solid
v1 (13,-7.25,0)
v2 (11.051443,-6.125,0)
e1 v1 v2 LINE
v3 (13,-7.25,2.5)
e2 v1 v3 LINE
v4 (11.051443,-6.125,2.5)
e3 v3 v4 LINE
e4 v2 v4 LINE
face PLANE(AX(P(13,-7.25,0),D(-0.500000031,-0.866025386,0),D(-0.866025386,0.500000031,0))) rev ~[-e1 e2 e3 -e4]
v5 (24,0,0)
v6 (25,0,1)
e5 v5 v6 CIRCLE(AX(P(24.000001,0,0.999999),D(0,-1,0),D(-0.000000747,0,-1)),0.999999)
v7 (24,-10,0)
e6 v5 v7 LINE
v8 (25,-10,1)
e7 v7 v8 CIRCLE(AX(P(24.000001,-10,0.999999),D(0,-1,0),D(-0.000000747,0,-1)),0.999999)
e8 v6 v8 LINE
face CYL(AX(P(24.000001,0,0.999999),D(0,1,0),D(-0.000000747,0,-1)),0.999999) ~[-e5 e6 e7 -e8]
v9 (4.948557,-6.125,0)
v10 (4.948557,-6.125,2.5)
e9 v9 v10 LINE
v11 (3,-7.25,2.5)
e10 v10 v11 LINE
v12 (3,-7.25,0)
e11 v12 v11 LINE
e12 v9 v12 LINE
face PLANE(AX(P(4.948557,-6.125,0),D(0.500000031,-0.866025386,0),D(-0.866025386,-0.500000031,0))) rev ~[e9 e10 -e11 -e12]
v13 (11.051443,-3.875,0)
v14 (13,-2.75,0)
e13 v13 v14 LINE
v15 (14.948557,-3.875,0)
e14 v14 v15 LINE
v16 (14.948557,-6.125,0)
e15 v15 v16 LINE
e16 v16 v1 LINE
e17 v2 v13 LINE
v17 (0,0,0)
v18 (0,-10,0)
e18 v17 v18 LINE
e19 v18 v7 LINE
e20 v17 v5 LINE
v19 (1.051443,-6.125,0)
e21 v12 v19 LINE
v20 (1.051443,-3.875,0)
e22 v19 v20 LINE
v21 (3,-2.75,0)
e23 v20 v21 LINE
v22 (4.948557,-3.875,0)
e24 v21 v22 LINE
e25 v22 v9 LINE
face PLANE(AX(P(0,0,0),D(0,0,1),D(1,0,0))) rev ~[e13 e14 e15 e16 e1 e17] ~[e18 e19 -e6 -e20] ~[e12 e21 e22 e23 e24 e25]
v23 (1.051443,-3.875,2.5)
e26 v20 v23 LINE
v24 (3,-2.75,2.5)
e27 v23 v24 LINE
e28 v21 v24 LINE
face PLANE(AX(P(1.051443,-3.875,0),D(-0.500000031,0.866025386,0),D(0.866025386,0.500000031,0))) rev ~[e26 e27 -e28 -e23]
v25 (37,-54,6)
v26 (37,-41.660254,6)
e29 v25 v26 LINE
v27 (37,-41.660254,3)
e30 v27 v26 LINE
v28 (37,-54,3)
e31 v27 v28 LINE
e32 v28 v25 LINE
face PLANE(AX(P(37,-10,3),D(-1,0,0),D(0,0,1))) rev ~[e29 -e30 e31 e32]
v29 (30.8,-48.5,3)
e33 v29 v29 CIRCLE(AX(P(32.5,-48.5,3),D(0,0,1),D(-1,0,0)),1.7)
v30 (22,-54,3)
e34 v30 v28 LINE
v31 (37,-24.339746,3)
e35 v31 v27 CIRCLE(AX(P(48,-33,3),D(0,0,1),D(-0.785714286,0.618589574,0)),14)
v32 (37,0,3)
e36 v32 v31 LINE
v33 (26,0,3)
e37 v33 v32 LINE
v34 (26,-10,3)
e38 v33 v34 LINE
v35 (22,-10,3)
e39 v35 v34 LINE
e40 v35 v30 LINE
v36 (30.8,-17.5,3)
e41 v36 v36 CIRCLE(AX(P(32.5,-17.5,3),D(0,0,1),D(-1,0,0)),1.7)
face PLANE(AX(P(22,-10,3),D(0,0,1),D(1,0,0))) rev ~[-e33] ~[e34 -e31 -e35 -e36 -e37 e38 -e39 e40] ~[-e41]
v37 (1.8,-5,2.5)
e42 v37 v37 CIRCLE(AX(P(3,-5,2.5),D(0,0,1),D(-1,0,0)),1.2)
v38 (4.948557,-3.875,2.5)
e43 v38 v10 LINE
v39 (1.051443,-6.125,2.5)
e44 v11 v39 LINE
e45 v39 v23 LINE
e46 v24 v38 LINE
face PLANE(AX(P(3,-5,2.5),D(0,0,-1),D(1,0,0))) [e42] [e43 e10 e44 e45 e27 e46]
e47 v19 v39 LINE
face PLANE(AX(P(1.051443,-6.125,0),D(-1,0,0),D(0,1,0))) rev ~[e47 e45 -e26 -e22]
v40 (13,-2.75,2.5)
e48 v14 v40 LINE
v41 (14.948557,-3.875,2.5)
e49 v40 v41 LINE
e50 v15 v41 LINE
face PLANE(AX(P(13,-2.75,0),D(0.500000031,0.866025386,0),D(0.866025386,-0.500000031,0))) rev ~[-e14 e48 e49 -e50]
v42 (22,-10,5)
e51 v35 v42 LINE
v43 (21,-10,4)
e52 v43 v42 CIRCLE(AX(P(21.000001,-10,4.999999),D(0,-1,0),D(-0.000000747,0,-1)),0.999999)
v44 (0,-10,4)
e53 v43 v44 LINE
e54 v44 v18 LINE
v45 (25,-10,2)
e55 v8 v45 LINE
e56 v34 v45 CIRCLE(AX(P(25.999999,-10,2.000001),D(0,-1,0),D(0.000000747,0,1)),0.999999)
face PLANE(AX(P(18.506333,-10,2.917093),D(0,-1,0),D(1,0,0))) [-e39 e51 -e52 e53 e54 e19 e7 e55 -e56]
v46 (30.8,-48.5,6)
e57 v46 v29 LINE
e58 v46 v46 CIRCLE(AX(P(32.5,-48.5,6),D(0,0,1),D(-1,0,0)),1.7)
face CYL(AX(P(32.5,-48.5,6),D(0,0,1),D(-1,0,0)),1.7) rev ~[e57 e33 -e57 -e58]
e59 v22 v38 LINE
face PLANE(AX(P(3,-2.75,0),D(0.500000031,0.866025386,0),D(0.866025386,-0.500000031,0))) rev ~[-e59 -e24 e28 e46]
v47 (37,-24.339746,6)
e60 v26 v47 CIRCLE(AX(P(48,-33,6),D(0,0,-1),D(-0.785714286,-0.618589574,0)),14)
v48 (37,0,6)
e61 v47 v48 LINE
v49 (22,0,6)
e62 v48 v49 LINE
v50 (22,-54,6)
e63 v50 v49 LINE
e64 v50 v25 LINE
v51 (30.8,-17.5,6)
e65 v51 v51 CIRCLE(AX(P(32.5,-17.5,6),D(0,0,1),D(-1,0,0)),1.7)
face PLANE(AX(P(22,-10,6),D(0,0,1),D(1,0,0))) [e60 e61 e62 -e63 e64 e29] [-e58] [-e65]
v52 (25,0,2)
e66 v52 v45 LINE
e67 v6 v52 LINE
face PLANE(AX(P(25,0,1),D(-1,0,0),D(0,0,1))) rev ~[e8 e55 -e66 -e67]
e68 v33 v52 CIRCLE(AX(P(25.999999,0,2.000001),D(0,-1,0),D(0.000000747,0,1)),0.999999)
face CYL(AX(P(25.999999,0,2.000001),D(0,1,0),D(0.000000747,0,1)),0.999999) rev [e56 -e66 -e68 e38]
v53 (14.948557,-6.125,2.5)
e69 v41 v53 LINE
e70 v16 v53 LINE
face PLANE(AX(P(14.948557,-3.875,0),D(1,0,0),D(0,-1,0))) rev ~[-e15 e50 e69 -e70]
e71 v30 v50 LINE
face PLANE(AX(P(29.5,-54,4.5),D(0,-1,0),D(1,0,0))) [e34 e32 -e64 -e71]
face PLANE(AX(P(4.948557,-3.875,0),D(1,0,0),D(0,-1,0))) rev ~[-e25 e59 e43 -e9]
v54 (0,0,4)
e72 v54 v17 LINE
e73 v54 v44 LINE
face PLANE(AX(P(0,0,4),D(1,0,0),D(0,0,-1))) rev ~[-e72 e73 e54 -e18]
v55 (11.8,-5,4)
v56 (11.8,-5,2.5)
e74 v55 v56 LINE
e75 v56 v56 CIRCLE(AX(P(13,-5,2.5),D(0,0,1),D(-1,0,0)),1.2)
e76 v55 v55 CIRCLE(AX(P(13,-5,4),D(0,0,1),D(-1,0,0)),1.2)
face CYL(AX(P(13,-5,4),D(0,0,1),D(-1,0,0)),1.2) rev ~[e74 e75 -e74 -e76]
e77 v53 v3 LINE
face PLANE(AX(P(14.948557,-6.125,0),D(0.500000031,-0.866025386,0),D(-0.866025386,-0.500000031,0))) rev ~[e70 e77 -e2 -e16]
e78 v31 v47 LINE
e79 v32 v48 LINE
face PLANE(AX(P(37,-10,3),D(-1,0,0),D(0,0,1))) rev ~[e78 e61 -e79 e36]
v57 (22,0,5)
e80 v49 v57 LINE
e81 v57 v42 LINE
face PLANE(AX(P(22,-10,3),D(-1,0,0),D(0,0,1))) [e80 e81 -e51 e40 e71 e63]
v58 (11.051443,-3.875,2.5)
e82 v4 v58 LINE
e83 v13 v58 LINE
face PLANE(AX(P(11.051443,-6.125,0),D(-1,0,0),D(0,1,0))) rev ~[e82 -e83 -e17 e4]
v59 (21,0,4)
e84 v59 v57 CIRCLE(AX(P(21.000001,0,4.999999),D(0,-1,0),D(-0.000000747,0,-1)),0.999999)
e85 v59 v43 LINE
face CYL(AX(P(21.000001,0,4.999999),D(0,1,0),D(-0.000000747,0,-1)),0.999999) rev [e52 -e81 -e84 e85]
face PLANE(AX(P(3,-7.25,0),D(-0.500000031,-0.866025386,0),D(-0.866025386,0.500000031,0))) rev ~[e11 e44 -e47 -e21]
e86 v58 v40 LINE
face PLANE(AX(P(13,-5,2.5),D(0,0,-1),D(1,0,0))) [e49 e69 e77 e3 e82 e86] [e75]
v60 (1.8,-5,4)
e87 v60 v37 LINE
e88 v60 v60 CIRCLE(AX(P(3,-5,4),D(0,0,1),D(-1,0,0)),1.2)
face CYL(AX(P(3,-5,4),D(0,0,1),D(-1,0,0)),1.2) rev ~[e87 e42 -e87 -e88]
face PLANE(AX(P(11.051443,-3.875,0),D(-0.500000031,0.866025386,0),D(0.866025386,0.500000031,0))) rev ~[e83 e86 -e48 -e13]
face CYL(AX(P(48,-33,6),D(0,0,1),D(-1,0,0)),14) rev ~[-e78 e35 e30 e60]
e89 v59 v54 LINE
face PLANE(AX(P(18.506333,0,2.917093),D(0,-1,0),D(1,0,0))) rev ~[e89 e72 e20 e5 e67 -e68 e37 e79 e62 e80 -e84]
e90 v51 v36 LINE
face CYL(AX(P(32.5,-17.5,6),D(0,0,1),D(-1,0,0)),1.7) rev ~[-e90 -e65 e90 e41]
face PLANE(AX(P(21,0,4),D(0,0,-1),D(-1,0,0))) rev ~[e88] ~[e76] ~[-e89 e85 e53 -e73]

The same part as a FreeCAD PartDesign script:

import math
import FreeCAD as App
import Part
import Sketcher

V = App.Vector
Q = App.Units.Quantity

doc = App.newDocument("Part")
body = doc.addObject("PartDesign::Body", "Body")

# Sketch on XZ plane
sketch1 = doc.addObject("Sketcher::SketchObject", "Sketch")
body.addObject(sketch1)
sketch1.AttachmentSupport = (doc.XZ_Plane, [""])
sketch1.MapMode = "FlatFace"
sketch1.addGeometry(Part.LineSegment(V(0, 0, 0), V(24, 0, 0)), False)
sketch1.addGeometry(Part.ArcOfCircle(Part.Circle(V(24, 1, 0), V(0, 0, 1), 1), math.radians(-90), math.radians(0)), False)
sketch1.addGeometry(Part.LineSegment(V(25, 1, 0), V(25, 2, 0)), False)
sketch1.addGeometry(Part.ArcOfCircle(Part.Circle(V(26, 2, 0), V(0, 0, 1), 1), math.radians(90), math.radians(180)), False)
sketch1.addGeometry(Part.LineSegment(V(26, 3, 0), V(37, 3, 0)), False)
sketch1.addGeometry(Part.LineSegment(V(37, 3, 0), V(37, 6, 0)), False)
sketch1.addGeometry(Part.LineSegment(V(37, 6, 0), V(22, 6, 0)), False)
sketch1.addGeometry(Part.LineSegment(V(22, 6, 0), V(22, 5, 0)), False)
sketch1.addGeometry(Part.ArcOfCircle(Part.Circle(V(21, 5, 0), V(0, 0, 1), 1), math.radians(-90), math.radians(0)), False)
sketch1.addGeometry(Part.LineSegment(V(21, 4, 0), V(0, 4, 0)), False)
sketch1.addGeometry(Part.LineSegment(V(0, 4, 0), V(0, 0, 0)), False)
sketch1.addConstraint(Sketcher.Constraint("Tangent", 0, 2, 1, 1))
sketch1.addConstraint(Sketcher.Constraint("Tangent", 1, 2, 2, 1))
sketch1.addConstraint(Sketcher.Constraint("Tangent", 2, 2, 3, 2))
sketch1.addConstraint(Sketcher.Constraint("Tangent", 3, 1, 4, 1))
sketch1.addConstraint(Sketcher.Constraint("Coincident", 4, 2, 5, 1))
sketch1.addConstraint(Sketcher.Constraint("Coincident", 5, 2, 6, 1))
sketch1.addConstraint(Sketcher.Constraint("Coincident", 6, 2, 7, 1))
sketch1.addConstraint(Sketcher.Constraint("Tangent", 7, 2, 8, 2))
sketch1.addConstraint(Sketcher.Constraint("Tangent", 8, 1, 9, 1))
sketch1.addConstraint(Sketcher.Constraint("Coincident", 9, 2, 10, 1))
sketch1.addConstraint(Sketcher.Constraint("Coincident", 10, 2, 0, 1))
sketch1.addConstraint(Sketcher.Constraint("Horizontal", 0))
sketch1.addConstraint(Sketcher.Constraint("Vertical", 2))
sketch1.addConstraint(Sketcher.Constraint("Horizontal", 4))
sketch1.addConstraint(Sketcher.Constraint("Vertical", 5))
sketch1.addConstraint(Sketcher.Constraint("Horizontal", 6))
sketch1.addConstraint(Sketcher.Constraint("Vertical", 7))
sketch1.addConstraint(Sketcher.Constraint("Horizontal", 9))
sketch1.addConstraint(Sketcher.Constraint("Vertical", 10))
sketch1.addConstraint(Sketcher.Constraint("Coincident", 10, 2, -1, 1))
sketch1.addConstraint(Sketcher.Constraint("Equal", 1, 3))
sketch1.addConstraint(Sketcher.Constraint("Equal", 3, 8))
sketch1.addConstraint(Sketcher.Constraint("Equal", 2, 7))
sketch1.addConstraint(Sketcher.Constraint("Radius", 1, 0.999999))
sketch1.addConstraint(Sketcher.Constraint("DistanceX", 0, 1, 0, 2, 24.0))
sketch1.addConstraint(Sketcher.Constraint("DistanceX", 4, 1, 4, 2, 11.0))
sketch1.addConstraint(Sketcher.Constraint("DistanceX", 6, 2, 6, 1, 15.0))
sketch1.addConstraint(Sketcher.Constraint("DistanceY", 2, 1, 2, 2, 1.0))
sketch1.addConstraint(Sketcher.Constraint("DistanceY", 5, 1, 5, 2, 3.0))
pad1 = doc.addObject("PartDesign::Pad", "Pad")
body.addObject(pad1)
pad1.Profile = sketch1
pad1.Length = 10

# Sketch on XZ plane
sketch2 = doc.addObject("Sketcher::SketchObject", "Sketch001")
body.addObject(sketch2)
sketch2.AttachmentSupport = (doc.XZ_Plane, [""])
sketch2.MapMode = "FlatFace"
sketch2.AttachmentOffset = App.Placement(V(0, 0, 10), App.Rotation())
sketch2.addGeometry(Part.LineSegment(V(22, 6, 0), V(22, 3, 0)), False)
sketch2.addGeometry(Part.LineSegment(V(22, 3, 0), V(37, 3, 0)), False)
sketch2.addGeometry(Part.LineSegment(V(37, 3, 0), V(37, 6, 0)), False)
sketch2.addGeometry(Part.LineSegment(V(37, 6, 0), V(22, 6, 0)), False)
sketch2.addConstraint(Sketcher.Constraint("Coincident", 0, 2, 1, 1))
sketch2.addConstraint(Sketcher.Constraint("Coincident", 1, 2, 2, 1))
sketch2.addConstraint(Sketcher.Constraint("Coincident", 2, 2, 3, 1))
sketch2.addConstraint(Sketcher.Constraint("Coincident", 3, 2, 0, 1))
sketch2.addConstraint(Sketcher.Constraint("Vertical", 0))
sketch2.addConstraint(Sketcher.Constraint("Horizontal", 1))
sketch2.addConstraint(Sketcher.Constraint("Vertical", 2))
sketch2.addConstraint(Sketcher.Constraint("Horizontal", 3))
sketch2.addConstraint(Sketcher.Constraint("DistanceX", 1, 1, 1, 2, 15.0))
sketch2.addConstraint(Sketcher.Constraint("DistanceY", 0, 2, 0, 1, 3.0))
sketch2.addConstraint(Sketcher.Constraint("DistanceX", -1, 1, 0, 2, 22.0))
sketch2.addConstraint(Sketcher.Constraint("DistanceY", -1, 1, 0, 2, 3.0))
pad2 = doc.addObject("PartDesign::Pad", "Pad001")
body.addObject(pad2)
pad2.Profile = sketch2
pad2.Length = 44

# Sketch on XY plane
sketch3 = doc.addObject("Sketcher::SketchObject", "Sketch002")
body.addObject(sketch3)
sketch3.AttachmentSupport = (doc.XY_Plane, [""])
sketch3.MapMode = "FlatFace"
sketch3.AttachmentOffset = App.Placement(V(0, 0, 6), App.Rotation())
sketch3.addGeometry(Part.Circle(V(48, -33, 0), V(0, 0, 1), 14), False)
sketch3.addGeometry(Part.Circle(V(32.5, -48.5, 0), V(0, 0, 1), 1.7), False)
sketch3.addGeometry(Part.Circle(V(32.5, -17.5, 0), V(0, 0, 1), 1.7), False)
sketch3.addConstraint(Sketcher.Constraint("Equal", 1, 2))
sketch3.addConstraint(Sketcher.Constraint("Vertical", 1, 3, 2, 3))
sketch3.addConstraint(Sketcher.Constraint("Diameter", 0, 28.0))
sketch3.addConstraint(Sketcher.Constraint("Diameter", 1, 3.4))
sketch3.addConstraint(Sketcher.Constraint("DistanceX", -1, 1, 0, 3, 48.0))
sketch3.addConstraint(Sketcher.Constraint("DistanceY", 0, 3, -1, 1, 33.0))
sketch3.addConstraint(Sketcher.Constraint("DistanceY", 1, 3, 2, 3, 31.0))
sketch3.addConstraint(Sketcher.Constraint("DistanceX", -1, 1, 1, 3, 32.5))
sketch3.addConstraint(Sketcher.Constraint("DistanceY", 1, 3, -1, 1, 48.5))
pocket1 = doc.addObject("PartDesign::Pocket", "Pocket")
body.addObject(pocket1)
pocket1.Profile = sketch3
pocket1.Type = "ThroughAll"

# Sketch on XY plane
sketch4 = doc.addObject("Sketcher::SketchObject", "Sketch003")
body.addObject(sketch4)
sketch4.AttachmentSupport = (doc.XY_Plane, [""])
sketch4.MapMode = "FlatFace"
sketch4.AttachmentOffset = App.Placement(V(0, 0, 4), App.Rotation())
sketch4.addGeometry(Part.Circle(V(3, -5, 0), V(0, 0, 1), 1.2), False)
sketch4.addGeometry(Part.Circle(V(13, -5, 0), V(0, 0, 1), 1.2), False)
sketch4.addConstraint(Sketcher.Constraint("Equal", 0, 1))
sketch4.addConstraint(Sketcher.Constraint("Horizontal", 0, 3, 1, 3))
sketch4.addConstraint(Sketcher.Constraint("Diameter", 0, 2.4))
sketch4.addConstraint(Sketcher.Constraint("DistanceX", -1, 1, 0, 3, 3.0))
sketch4.addConstraint(Sketcher.Constraint("DistanceY", 0, 3, -1, 1, 5.0))
sketch4.addConstraint(Sketcher.Constraint("DistanceX", -1, 1, 1, 3, 13.0))
pocket2 = doc.addObject("PartDesign::Pocket", "Pocket001")
body.addObject(pocket2)
pocket2.Profile = sketch4
pocket2.Length = 5

# Sketch on XY plane
sketch5 = doc.addObject("Sketcher::SketchObject", "Sketch004")
body.addObject(sketch5)
sketch5.AttachmentSupport = (doc.XY_Plane, [""])
sketch5.MapMode = "FlatFace"
sketch5.addGeometry(Part.LineSegment(V(4.9, -3.9, 0), V(4.9, -6.1, 0)), False)
sketch5.addGeometry(Part.LineSegment(V(4.9, -6.1, 0), V(3, -7.2, 0)), False)
sketch5.addGeometry(Part.LineSegment(V(3, -7.2, 0), V(1.1, -6.1, 0)), False)
sketch5.addGeometry(Part.LineSegment(V(1.1, -6.1, 0), V(1.1, -3.9, 0)), False)
sketch5.addGeometry(Part.LineSegment(V(1.1, -3.9, 0), V(3, -2.8, 0)), False)
sketch5.addGeometry(Part.LineSegment(V(3, -2.8, 0), V(4.9, -3.9, 0)), False)
sketch5.addGeometry(Part.LineSegment(V(13, -2.8, 0), V(14.9, -3.9, 0)), False)
sketch5.addGeometry(Part.LineSegment(V(14.9, -3.9, 0), V(14.9, -6.1, 0)), False)
sketch5.addGeometry(Part.LineSegment(V(14.9, -6.1, 0), V(13, -7.2, 0)), False)
sketch5.addGeometry(Part.LineSegment(V(13, -7.2, 0), V(11.1, -6.1, 0)), False)
sketch5.addGeometry(Part.LineSegment(V(11.1, -6.1, 0), V(11.1, -3.9, 0)), False)
sketch5.addGeometry(Part.LineSegment(V(11.1, -3.9, 0), V(13, -2.8, 0)), False)
sketch5.addConstraint(Sketcher.Constraint("Coincident", 0, 2, 1, 1))
sketch5.addConstraint(Sketcher.Constraint("Coincident", 1, 2, 2, 1))
sketch5.addConstraint(Sketcher.Constraint("Coincident", 2, 2, 3, 1))
sketch5.addConstraint(Sketcher.Constraint("Coincident", 3, 2, 4, 1))
sketch5.addConstraint(Sketcher.Constraint("Coincident", 4, 2, 5, 1))
sketch5.addConstraint(Sketcher.Constraint("Coincident", 5, 2, 0, 1))
sketch5.addConstraint(Sketcher.Constraint("Coincident", 6, 2, 7, 1))
sketch5.addConstraint(Sketcher.Constraint("Coincident", 7, 2, 8, 1))
sketch5.addConstraint(Sketcher.Constraint("Coincident", 8, 2, 9, 1))
sketch5.addConstraint(Sketcher.Constraint("Coincident", 9, 2, 10, 1))
sketch5.addConstraint(Sketcher.Constraint("Coincident", 10, 2, 11, 1))
sketch5.addConstraint(Sketcher.Constraint("Coincident", 11, 2, 6, 1))
sketch5.addConstraint(Sketcher.Constraint("Vertical", 0))
sketch5.addConstraint(Sketcher.Constraint("Vertical", 3))
sketch5.addConstraint(Sketcher.Constraint("Vertical", 7))
sketch5.addConstraint(Sketcher.Constraint("Vertical", 10))
sketch5.addConstraint(Sketcher.Constraint("Parallel", 1, 4))
sketch5.addConstraint(Sketcher.Constraint("Parallel", 2, 5))
sketch5.addConstraint(Sketcher.Constraint("Parallel", 5, 6))
sketch5.addConstraint(Sketcher.Constraint("Parallel", 4, 8))
sketch5.addConstraint(Sketcher.Constraint("Parallel", 6, 9))
sketch5.addConstraint(Sketcher.Constraint("Parallel", 8, 11))
sketch5.addConstraint(Sketcher.Constraint("Horizontal", 0, 2, 2, 2))
sketch5.addConstraint(Sketcher.Constraint("Horizontal", 3, 2, 5, 2))
sketch5.addConstraint(Sketcher.Constraint("Horizontal", 5, 2, 6, 2))
sketch5.addConstraint(Sketcher.Constraint("Horizontal", 2, 2, 7, 2))
sketch5.addConstraint(Sketcher.Constraint("Horizontal", 1, 2, 8, 2))
sketch5.addConstraint(Sketcher.Constraint("Horizontal", 7, 2, 9, 2))
sketch5.addConstraint(Sketcher.Constraint("Horizontal", 6, 2, 10, 2))
sketch5.addConstraint(Sketcher.Constraint("Vertical", 1, 2, 4, 2))
sketch5.addConstraint(Sketcher.Constraint("Angle", 1, Q("-149.999998 deg")))
sketch5.addConstraint(Sketcher.Constraint("DistanceX", -1, 1, 1, 2, 3.0))
sketch5.addConstraint(Sketcher.Constraint("DistanceX", -1, 1, 8, 2, 13.0))
sketch5.addConstraint(Sketcher.Constraint("DistanceY", 0, 2, 0, 1, 2.25))
sketch5.addConstraint(Sketcher.Constraint("DistanceY", 1, 2, 4, 2, 4.5))
sketch5.addConstraint(Sketcher.Constraint("DistanceY", 1, 2, -1, 1, 7.25))
pocket3 = doc.addObject("PartDesign::Pocket", "Pocket002")
body.addObject(pocket3)
pocket3.Profile = sketch5
pocket3.Length = 2.5
pocket3.Reversed = True

doc.recompute()
